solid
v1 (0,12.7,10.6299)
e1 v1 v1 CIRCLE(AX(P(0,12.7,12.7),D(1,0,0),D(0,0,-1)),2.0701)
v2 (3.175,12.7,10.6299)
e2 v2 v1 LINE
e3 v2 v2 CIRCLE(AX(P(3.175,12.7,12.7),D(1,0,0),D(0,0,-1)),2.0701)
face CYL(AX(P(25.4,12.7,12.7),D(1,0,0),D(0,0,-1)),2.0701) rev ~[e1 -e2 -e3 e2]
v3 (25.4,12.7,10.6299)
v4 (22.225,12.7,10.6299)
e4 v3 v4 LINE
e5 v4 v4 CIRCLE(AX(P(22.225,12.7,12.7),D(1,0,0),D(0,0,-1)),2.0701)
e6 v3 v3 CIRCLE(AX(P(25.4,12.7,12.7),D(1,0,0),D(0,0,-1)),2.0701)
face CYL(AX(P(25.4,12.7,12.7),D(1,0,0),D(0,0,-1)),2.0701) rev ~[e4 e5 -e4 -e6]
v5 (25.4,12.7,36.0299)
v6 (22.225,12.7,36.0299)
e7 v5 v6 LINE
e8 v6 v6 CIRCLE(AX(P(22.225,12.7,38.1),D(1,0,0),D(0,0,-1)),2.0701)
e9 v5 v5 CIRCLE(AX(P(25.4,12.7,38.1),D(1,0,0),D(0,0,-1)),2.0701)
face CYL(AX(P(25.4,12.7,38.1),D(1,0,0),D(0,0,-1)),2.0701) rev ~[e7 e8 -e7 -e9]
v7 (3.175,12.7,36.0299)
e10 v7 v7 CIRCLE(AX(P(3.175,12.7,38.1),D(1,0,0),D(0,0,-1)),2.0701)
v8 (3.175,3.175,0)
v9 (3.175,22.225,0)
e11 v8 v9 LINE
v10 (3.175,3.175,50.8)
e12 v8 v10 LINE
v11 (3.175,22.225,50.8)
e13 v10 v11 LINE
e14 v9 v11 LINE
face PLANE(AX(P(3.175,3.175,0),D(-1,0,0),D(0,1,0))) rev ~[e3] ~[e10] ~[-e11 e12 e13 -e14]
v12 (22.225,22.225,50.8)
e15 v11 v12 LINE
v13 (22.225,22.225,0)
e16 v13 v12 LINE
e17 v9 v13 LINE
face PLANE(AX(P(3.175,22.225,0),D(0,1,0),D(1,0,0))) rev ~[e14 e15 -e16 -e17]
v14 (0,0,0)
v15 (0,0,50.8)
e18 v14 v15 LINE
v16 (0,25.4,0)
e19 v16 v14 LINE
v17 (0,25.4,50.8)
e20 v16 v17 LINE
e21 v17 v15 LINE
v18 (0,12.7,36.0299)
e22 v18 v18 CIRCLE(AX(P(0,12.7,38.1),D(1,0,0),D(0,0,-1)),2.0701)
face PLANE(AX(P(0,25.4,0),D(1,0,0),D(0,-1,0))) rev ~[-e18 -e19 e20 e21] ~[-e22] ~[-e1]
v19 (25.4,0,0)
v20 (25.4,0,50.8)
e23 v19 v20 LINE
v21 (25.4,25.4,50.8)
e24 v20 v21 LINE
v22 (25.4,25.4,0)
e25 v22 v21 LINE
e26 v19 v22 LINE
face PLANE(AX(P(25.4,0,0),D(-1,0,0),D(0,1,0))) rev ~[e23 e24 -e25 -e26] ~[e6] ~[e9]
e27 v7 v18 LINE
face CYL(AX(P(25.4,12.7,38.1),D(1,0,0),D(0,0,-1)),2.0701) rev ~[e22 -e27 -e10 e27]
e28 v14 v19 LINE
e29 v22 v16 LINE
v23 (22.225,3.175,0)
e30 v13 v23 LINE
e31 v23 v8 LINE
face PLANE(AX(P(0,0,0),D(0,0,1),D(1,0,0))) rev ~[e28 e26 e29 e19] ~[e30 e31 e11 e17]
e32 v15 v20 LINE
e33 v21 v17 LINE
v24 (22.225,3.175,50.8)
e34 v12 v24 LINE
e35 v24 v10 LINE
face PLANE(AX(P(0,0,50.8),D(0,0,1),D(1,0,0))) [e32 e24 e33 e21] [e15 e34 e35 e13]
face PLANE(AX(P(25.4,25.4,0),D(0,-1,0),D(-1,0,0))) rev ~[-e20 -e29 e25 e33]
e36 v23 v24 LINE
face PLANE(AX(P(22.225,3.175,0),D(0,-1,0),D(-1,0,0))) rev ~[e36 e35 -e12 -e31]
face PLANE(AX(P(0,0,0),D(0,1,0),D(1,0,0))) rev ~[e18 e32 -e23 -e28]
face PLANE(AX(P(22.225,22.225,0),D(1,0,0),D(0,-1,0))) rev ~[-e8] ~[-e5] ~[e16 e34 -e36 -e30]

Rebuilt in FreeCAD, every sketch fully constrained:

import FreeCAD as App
import Part
import Sketcher
Q = App.Units.Quantity


def add_polygon(sketch, points):
    """Adds a closed chain of lines whose ends are joined by coincident constraints."""
    first, n = sketch.GeometryCount, len(points)
    for a, b in zip(points, points[1:] + points[:1]):
        sketch.addGeometry(Part.LineSegment(App.Vector(*a, 0), App.Vector(*b, 0)), False)
    for i in range(n):
        sketch.addConstraint(Sketcher.Constraint("Coincident", first + i, 2, first + (i + 1) % n, 1))

doc = App.newDocument("Part")
body = doc.addObject("PartDesign::Body", "Body")

# Sketch on XY plane
sketch1 = body.newObject("Sketcher::SketchObject", "Sketch")
sketch1.AttachmentSupport = (doc.getObject("XY_Plane"), [""])
sketch1.MapMode = "FlatFace"
add_polygon(sketch1, [(0, 25), (0, 0), (25, 0), (25, 25)])  # lines 0-3
add_polygon(sketch1, [(22, 22), (22, 3), (3, 3), (3, 22)])  # lines 4-7
sketch1.addConstraint([
    Sketcher.Constraint("Vertical", 0),
    Sketcher.Constraint("Horizontal", 1),
    Sketcher.Constraint("Vertical", 2),
    Sketcher.Constraint("Horizontal", 3),
    Sketcher.Constraint("Vertical", 4),
    Sketcher.Constraint("Horizontal", 5),
    Sketcher.Constraint("Vertical", 6),
    Sketcher.Constraint("Horizontal", 7),
    Sketcher.Constraint("Coincident", 0, 2, -1, 1),
    Sketcher.Constraint("Equal", 3, 0),
    Sketcher.Constraint("Equal", 7, 4),
    Sketcher.Constraint("DistanceX", 1, 1, 1, 2, Q("1 in")),
    Sketcher.Constraint("DistanceY", -1, 1, 4, 2, Q("0.125 in")),
    Sketcher.Constraint("DistanceX", -1, 1, 5, 2, Q("0.125 in")),
    Sketcher.Constraint("DistanceX", 4, 2, 1, 2, Q("0.125 in")),
])
pad1 = body.newObject("PartDesign::Pad", "Pad")
pad1.Profile = sketch1
pad1.Length = Q("2 in")

# Sketch on YZ plane
sketch2 = body.newObject("Sketcher::SketchObject", "Sketch001")
sketch2.AttachmentSupport = (doc.getObject("YZ_Plane"), [""])
sketch2.MapMode = "FlatFace"
sketch2.AttachmentOffset = App.Placement(App.Vector(0, 0, 1 * 25.4), App.Rotation())
sketch2.addGeometry([
    Part.Circle(App.Vector(12.7, 38.1, 0), App.Vector(0, 0, 1), 2.1),
    Part.Circle(App.Vector(12.7, 12.7, 0), App.Vector(0, 0, 1), 2.1),
], False)
sketch2.addConstraint([
    Sketcher.Constraint("Equal", 0, 1),
    Sketcher.Constraint("Vertical", 0, 3, 1, 3),
    Sketcher.Constraint("Diameter", 0, Q("0.163 in")),
    Sketcher.Constraint("DistanceY", 1, 3, 0, 3, Q("1 in")),
    Sketcher.Constraint("DistanceX", -1, 1, 0, 3, Q("0.5 in")),
    Sketcher.Constraint("DistanceY", -1, 1, 1, 3, Q("0.5 in")),
])
pocket1 = body.newObject("PartDesign::Pocket", "Pocket")
pocket1.Profile = sketch2
pocket1.Length = Q("2 in")

doc.recompute()
